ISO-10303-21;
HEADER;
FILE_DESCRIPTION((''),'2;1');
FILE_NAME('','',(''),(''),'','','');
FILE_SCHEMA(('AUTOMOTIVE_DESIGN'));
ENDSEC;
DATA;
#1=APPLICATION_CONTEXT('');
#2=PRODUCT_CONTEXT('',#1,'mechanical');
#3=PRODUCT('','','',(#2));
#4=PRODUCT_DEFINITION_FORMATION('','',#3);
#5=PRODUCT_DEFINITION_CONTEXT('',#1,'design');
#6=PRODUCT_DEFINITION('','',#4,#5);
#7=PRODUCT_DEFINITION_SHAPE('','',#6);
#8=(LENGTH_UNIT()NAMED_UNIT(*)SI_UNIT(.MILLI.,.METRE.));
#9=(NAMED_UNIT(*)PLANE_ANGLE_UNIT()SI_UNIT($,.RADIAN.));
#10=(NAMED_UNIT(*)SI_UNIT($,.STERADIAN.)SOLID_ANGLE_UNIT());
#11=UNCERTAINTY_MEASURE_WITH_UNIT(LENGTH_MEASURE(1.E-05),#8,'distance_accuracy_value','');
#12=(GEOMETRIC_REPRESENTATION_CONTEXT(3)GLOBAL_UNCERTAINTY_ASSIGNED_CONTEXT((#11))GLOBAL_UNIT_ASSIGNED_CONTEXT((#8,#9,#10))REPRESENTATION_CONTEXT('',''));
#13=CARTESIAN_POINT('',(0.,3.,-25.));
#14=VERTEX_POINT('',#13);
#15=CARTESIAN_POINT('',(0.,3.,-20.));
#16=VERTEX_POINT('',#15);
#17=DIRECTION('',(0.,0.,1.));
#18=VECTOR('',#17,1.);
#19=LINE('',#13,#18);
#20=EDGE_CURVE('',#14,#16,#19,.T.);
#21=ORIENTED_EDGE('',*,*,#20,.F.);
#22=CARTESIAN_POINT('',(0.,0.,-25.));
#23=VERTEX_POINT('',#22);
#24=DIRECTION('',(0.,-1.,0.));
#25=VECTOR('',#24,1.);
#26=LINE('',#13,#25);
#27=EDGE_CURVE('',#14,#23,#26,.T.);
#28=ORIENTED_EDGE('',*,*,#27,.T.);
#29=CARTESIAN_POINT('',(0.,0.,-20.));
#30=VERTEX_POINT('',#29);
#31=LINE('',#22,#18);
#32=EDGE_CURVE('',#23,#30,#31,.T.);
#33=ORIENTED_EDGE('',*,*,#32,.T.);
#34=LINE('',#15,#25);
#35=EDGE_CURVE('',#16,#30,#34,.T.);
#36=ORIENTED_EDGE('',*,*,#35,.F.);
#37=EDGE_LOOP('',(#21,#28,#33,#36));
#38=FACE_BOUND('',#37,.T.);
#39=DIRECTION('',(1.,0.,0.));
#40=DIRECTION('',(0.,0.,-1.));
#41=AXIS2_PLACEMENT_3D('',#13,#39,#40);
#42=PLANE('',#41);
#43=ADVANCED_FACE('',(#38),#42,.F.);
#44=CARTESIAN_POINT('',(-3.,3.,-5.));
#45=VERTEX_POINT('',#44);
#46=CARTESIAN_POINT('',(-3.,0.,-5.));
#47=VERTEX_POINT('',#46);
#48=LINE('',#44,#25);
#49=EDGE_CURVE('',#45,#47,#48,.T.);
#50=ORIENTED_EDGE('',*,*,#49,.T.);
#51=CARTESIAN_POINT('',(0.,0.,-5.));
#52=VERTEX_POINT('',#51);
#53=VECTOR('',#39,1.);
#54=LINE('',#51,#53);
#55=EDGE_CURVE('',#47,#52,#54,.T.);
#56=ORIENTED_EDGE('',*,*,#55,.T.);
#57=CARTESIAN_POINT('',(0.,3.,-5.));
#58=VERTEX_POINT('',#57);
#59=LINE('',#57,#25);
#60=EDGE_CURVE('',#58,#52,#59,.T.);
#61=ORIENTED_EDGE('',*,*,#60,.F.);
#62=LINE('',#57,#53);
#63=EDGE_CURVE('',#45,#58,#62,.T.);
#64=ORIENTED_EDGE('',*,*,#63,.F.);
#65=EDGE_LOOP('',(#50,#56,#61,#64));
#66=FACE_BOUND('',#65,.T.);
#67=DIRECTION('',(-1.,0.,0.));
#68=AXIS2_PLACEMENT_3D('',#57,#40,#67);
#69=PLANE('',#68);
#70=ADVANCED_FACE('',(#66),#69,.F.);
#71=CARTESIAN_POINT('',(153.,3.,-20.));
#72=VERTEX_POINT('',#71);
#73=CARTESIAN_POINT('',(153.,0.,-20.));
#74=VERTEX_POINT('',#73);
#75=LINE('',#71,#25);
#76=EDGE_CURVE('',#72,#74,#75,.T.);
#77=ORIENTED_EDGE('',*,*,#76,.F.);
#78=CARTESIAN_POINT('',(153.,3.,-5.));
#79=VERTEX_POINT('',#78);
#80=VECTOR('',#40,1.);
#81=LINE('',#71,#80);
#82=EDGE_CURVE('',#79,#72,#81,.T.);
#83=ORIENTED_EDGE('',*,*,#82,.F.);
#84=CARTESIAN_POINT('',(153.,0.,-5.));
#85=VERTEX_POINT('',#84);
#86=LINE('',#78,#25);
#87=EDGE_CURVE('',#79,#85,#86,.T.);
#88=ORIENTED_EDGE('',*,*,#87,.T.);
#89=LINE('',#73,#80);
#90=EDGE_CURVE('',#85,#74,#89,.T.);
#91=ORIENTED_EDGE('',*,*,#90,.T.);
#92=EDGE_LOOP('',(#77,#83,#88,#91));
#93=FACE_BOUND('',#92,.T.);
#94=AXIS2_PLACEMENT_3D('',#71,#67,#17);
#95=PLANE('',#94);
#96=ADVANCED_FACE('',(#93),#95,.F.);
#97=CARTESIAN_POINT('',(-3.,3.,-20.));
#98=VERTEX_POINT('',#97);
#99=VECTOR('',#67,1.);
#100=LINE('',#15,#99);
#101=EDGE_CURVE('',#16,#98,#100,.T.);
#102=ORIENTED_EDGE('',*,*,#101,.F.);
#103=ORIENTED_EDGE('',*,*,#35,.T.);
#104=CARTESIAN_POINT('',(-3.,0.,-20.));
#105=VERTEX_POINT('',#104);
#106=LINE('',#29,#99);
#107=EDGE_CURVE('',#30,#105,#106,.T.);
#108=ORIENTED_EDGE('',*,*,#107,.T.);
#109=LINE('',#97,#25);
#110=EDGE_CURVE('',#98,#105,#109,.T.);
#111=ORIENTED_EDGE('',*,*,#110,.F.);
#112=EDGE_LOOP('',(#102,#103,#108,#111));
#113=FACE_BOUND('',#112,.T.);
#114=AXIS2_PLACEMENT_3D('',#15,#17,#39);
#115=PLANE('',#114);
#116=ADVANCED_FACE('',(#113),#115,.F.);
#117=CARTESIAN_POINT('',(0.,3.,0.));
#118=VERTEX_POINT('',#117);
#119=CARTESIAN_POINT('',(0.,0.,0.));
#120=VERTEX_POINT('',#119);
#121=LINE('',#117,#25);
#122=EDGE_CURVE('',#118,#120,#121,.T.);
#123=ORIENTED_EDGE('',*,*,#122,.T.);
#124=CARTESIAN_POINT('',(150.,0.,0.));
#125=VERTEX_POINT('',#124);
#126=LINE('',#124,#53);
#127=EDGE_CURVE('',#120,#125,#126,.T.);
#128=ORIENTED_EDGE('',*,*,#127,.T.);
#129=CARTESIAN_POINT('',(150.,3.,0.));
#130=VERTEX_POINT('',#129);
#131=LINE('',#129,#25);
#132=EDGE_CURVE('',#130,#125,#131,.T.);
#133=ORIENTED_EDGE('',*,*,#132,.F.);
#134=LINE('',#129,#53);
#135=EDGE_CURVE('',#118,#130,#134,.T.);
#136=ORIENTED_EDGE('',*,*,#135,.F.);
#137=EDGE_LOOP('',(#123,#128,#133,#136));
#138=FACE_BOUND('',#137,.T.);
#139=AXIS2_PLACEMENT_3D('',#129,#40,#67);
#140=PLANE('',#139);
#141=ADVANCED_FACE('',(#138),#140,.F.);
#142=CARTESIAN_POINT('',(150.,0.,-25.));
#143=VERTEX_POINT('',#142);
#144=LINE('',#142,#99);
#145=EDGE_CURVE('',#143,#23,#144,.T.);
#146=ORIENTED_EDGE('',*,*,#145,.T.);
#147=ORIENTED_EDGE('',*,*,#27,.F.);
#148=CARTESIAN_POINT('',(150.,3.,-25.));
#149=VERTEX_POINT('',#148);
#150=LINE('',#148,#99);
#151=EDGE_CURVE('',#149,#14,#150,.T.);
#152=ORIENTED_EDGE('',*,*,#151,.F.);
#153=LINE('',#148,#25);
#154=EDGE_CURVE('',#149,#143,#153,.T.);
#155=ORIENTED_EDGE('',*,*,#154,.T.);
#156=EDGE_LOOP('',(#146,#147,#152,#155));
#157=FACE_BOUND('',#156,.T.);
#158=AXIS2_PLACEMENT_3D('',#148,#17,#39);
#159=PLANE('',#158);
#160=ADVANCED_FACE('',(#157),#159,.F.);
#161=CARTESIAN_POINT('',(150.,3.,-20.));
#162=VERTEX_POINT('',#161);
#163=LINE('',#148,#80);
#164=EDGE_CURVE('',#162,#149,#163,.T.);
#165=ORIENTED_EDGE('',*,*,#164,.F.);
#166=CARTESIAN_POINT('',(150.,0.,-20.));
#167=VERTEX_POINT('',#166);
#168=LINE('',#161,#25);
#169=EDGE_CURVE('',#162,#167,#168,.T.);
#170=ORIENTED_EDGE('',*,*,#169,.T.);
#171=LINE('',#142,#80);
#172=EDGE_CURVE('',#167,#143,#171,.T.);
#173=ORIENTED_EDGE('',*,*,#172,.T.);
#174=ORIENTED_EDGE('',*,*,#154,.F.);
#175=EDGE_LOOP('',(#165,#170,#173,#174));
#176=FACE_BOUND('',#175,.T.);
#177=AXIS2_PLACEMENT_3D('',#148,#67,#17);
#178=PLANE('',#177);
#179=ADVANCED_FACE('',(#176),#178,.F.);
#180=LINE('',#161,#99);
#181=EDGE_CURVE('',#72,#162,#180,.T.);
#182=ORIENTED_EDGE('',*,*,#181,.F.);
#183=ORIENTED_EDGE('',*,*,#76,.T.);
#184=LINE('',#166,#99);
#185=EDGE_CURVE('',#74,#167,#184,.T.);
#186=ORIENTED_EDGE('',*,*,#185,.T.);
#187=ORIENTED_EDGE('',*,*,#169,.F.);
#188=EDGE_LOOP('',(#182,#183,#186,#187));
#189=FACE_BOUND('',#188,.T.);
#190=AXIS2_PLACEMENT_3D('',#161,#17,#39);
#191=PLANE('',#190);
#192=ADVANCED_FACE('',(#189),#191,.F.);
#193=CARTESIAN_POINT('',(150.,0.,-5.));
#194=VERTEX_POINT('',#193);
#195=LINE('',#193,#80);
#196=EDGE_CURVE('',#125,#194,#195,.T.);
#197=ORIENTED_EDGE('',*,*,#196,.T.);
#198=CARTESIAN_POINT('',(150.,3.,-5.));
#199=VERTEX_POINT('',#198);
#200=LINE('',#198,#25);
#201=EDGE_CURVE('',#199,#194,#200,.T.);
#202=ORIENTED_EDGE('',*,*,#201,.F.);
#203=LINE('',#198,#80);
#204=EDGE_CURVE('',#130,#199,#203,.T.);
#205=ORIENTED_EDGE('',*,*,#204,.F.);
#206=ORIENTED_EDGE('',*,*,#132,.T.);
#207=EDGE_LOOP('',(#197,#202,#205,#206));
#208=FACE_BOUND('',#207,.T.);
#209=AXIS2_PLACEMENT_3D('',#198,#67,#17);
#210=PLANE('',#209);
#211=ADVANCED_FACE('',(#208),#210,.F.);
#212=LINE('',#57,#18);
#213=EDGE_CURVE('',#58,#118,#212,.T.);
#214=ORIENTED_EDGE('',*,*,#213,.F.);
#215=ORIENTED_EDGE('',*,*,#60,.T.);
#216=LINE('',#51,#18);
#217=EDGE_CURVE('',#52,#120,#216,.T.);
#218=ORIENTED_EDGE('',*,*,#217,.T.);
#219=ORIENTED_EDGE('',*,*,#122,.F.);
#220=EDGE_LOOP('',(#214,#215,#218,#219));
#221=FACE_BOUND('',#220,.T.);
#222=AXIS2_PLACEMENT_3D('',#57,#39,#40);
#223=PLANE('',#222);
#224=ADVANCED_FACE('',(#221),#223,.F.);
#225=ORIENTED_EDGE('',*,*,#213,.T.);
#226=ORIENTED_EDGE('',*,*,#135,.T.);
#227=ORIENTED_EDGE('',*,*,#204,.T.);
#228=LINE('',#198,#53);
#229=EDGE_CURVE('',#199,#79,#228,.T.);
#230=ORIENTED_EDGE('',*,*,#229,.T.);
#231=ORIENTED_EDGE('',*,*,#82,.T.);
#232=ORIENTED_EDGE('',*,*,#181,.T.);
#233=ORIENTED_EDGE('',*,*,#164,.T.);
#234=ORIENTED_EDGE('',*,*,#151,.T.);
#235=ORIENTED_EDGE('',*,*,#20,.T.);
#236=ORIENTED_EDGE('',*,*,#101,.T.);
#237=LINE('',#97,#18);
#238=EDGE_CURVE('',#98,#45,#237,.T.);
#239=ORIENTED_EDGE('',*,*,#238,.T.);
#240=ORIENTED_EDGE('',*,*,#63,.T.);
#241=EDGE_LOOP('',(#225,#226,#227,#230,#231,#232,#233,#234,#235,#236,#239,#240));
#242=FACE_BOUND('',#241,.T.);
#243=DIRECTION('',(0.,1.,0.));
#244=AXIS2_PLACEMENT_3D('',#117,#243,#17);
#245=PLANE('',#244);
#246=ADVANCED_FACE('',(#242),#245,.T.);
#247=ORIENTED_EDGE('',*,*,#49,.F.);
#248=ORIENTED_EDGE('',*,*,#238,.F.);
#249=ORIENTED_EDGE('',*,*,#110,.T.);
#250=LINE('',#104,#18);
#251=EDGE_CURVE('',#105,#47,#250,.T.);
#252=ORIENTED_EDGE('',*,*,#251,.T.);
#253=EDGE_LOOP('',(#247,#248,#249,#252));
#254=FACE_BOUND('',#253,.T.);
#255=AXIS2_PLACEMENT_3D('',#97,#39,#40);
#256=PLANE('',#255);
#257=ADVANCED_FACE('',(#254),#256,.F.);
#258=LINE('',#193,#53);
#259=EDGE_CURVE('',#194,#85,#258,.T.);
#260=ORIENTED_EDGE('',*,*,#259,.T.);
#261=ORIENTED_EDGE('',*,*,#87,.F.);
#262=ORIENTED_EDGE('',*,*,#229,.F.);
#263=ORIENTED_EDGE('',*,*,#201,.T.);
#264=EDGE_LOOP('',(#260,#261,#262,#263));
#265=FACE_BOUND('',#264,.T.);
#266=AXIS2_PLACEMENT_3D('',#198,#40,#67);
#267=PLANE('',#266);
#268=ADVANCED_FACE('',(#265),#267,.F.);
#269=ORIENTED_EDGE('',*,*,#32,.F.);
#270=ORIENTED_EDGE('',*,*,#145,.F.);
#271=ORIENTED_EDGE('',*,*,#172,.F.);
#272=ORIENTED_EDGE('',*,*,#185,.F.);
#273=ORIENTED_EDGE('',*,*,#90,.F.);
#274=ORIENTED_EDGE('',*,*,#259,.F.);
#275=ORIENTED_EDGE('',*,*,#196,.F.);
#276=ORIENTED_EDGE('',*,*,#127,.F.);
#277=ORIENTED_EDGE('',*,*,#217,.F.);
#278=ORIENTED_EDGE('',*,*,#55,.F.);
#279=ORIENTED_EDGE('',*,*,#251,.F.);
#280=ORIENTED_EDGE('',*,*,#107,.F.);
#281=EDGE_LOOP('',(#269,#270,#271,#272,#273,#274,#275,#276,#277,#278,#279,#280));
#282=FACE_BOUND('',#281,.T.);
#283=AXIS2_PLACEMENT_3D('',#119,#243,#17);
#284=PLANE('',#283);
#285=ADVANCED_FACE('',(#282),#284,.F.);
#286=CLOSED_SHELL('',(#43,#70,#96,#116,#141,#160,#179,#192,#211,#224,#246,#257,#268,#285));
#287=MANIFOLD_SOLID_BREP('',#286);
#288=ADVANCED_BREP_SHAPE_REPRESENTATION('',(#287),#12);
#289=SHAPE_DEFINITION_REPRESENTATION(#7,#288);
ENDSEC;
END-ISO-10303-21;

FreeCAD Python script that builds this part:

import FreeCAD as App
import Part
import Sketcher

V = App.Vector


def add_polygon(sketch, points):
    """Adds a closed chain of lines whose ends are joined by coincident constraints."""
    first, n = sketch.GeometryCount, len(points)
    for a, b in zip(points, points[1:] + points[:1]):
        sketch.addGeometry(Part.LineSegment(App.Vector(*a, 0), App.Vector(*b, 0)), False)
    for i in range(n):
        sketch.addConstraint(Sketcher.Constraint("Coincident", first + i, 2, first + (i + 1) % n, 1))

doc = App.newDocument("Part")
body = doc.addObject("PartDesign::Body", "Body")

# Sketch on XZ plane
sketch1 = body.newObject("Sketcher::SketchObject", "Sketch")
sketch1.AttachmentSupport = (doc.getObject("XZ_Plane"), [""])
sketch1.MapMode = "FlatFace"
add_polygon(sketch1, [(0, -5), (0, 0), (150, 0), (150, -5), (153, -5), (153, -20), (150, -20), (150, -25), (0, -25), (0, -20), (-3, -20), (-3, -5)])  # lines 0-11
sketch1.addConstraint([
    Sketcher.Constraint("Vertical", 0),
    Sketcher.Constraint("Horizontal", 1),
    Sketcher.Constraint("Vertical", 2),
    Sketcher.Constraint("Horizontal", 3),
    Sketcher.Constraint("Vertical", 4),
    Sketcher.Constraint("Horizontal", 5),
    Sketcher.Constraint("Vertical", 6),
    Sketcher.Constraint("Horizontal", 7),
    Sketcher.Constraint("Vertical", 8),
    Sketcher.Constraint("Horizontal", 9),
    Sketcher.Constraint("Vertical", 10),
    Sketcher.Constraint("Horizontal", 11),
    Sketcher.Constraint("Coincident", 0, 2, -1, 1),
    Sketcher.Constraint("PointOnObject", 7, 2, -2),
    Sketcher.Constraint("Horizontal", 5, 2, 8, 2),
    Sketcher.Constraint("Horizontal", 3, 2, 10, 2),
    Sketcher.Constraint("Vertical", 2, 2, 5, 2),
    Sketcher.Constraint("Equal", 5, 9),
    Sketcher.Constraint("Equal", 2, 6),
    Sketcher.Constraint("DistanceX", 1, 1, 1, 2, 150.0),
    Sketcher.Constraint("DistanceX", 3, 1, 3, 2, 3.0),
    Sketcher.Constraint("DistanceY", 0, 1, 0, 2, 5.0),
    Sketcher.Constraint("DistanceY", 4, 2, 4, 1, 15.0),
])
pad1 = body.newObject("PartDesign::Pad", "Pad")
pad1.Profile = sketch1
pad1.Length = 3
pad1.Reversed = True

doc.recompute()
